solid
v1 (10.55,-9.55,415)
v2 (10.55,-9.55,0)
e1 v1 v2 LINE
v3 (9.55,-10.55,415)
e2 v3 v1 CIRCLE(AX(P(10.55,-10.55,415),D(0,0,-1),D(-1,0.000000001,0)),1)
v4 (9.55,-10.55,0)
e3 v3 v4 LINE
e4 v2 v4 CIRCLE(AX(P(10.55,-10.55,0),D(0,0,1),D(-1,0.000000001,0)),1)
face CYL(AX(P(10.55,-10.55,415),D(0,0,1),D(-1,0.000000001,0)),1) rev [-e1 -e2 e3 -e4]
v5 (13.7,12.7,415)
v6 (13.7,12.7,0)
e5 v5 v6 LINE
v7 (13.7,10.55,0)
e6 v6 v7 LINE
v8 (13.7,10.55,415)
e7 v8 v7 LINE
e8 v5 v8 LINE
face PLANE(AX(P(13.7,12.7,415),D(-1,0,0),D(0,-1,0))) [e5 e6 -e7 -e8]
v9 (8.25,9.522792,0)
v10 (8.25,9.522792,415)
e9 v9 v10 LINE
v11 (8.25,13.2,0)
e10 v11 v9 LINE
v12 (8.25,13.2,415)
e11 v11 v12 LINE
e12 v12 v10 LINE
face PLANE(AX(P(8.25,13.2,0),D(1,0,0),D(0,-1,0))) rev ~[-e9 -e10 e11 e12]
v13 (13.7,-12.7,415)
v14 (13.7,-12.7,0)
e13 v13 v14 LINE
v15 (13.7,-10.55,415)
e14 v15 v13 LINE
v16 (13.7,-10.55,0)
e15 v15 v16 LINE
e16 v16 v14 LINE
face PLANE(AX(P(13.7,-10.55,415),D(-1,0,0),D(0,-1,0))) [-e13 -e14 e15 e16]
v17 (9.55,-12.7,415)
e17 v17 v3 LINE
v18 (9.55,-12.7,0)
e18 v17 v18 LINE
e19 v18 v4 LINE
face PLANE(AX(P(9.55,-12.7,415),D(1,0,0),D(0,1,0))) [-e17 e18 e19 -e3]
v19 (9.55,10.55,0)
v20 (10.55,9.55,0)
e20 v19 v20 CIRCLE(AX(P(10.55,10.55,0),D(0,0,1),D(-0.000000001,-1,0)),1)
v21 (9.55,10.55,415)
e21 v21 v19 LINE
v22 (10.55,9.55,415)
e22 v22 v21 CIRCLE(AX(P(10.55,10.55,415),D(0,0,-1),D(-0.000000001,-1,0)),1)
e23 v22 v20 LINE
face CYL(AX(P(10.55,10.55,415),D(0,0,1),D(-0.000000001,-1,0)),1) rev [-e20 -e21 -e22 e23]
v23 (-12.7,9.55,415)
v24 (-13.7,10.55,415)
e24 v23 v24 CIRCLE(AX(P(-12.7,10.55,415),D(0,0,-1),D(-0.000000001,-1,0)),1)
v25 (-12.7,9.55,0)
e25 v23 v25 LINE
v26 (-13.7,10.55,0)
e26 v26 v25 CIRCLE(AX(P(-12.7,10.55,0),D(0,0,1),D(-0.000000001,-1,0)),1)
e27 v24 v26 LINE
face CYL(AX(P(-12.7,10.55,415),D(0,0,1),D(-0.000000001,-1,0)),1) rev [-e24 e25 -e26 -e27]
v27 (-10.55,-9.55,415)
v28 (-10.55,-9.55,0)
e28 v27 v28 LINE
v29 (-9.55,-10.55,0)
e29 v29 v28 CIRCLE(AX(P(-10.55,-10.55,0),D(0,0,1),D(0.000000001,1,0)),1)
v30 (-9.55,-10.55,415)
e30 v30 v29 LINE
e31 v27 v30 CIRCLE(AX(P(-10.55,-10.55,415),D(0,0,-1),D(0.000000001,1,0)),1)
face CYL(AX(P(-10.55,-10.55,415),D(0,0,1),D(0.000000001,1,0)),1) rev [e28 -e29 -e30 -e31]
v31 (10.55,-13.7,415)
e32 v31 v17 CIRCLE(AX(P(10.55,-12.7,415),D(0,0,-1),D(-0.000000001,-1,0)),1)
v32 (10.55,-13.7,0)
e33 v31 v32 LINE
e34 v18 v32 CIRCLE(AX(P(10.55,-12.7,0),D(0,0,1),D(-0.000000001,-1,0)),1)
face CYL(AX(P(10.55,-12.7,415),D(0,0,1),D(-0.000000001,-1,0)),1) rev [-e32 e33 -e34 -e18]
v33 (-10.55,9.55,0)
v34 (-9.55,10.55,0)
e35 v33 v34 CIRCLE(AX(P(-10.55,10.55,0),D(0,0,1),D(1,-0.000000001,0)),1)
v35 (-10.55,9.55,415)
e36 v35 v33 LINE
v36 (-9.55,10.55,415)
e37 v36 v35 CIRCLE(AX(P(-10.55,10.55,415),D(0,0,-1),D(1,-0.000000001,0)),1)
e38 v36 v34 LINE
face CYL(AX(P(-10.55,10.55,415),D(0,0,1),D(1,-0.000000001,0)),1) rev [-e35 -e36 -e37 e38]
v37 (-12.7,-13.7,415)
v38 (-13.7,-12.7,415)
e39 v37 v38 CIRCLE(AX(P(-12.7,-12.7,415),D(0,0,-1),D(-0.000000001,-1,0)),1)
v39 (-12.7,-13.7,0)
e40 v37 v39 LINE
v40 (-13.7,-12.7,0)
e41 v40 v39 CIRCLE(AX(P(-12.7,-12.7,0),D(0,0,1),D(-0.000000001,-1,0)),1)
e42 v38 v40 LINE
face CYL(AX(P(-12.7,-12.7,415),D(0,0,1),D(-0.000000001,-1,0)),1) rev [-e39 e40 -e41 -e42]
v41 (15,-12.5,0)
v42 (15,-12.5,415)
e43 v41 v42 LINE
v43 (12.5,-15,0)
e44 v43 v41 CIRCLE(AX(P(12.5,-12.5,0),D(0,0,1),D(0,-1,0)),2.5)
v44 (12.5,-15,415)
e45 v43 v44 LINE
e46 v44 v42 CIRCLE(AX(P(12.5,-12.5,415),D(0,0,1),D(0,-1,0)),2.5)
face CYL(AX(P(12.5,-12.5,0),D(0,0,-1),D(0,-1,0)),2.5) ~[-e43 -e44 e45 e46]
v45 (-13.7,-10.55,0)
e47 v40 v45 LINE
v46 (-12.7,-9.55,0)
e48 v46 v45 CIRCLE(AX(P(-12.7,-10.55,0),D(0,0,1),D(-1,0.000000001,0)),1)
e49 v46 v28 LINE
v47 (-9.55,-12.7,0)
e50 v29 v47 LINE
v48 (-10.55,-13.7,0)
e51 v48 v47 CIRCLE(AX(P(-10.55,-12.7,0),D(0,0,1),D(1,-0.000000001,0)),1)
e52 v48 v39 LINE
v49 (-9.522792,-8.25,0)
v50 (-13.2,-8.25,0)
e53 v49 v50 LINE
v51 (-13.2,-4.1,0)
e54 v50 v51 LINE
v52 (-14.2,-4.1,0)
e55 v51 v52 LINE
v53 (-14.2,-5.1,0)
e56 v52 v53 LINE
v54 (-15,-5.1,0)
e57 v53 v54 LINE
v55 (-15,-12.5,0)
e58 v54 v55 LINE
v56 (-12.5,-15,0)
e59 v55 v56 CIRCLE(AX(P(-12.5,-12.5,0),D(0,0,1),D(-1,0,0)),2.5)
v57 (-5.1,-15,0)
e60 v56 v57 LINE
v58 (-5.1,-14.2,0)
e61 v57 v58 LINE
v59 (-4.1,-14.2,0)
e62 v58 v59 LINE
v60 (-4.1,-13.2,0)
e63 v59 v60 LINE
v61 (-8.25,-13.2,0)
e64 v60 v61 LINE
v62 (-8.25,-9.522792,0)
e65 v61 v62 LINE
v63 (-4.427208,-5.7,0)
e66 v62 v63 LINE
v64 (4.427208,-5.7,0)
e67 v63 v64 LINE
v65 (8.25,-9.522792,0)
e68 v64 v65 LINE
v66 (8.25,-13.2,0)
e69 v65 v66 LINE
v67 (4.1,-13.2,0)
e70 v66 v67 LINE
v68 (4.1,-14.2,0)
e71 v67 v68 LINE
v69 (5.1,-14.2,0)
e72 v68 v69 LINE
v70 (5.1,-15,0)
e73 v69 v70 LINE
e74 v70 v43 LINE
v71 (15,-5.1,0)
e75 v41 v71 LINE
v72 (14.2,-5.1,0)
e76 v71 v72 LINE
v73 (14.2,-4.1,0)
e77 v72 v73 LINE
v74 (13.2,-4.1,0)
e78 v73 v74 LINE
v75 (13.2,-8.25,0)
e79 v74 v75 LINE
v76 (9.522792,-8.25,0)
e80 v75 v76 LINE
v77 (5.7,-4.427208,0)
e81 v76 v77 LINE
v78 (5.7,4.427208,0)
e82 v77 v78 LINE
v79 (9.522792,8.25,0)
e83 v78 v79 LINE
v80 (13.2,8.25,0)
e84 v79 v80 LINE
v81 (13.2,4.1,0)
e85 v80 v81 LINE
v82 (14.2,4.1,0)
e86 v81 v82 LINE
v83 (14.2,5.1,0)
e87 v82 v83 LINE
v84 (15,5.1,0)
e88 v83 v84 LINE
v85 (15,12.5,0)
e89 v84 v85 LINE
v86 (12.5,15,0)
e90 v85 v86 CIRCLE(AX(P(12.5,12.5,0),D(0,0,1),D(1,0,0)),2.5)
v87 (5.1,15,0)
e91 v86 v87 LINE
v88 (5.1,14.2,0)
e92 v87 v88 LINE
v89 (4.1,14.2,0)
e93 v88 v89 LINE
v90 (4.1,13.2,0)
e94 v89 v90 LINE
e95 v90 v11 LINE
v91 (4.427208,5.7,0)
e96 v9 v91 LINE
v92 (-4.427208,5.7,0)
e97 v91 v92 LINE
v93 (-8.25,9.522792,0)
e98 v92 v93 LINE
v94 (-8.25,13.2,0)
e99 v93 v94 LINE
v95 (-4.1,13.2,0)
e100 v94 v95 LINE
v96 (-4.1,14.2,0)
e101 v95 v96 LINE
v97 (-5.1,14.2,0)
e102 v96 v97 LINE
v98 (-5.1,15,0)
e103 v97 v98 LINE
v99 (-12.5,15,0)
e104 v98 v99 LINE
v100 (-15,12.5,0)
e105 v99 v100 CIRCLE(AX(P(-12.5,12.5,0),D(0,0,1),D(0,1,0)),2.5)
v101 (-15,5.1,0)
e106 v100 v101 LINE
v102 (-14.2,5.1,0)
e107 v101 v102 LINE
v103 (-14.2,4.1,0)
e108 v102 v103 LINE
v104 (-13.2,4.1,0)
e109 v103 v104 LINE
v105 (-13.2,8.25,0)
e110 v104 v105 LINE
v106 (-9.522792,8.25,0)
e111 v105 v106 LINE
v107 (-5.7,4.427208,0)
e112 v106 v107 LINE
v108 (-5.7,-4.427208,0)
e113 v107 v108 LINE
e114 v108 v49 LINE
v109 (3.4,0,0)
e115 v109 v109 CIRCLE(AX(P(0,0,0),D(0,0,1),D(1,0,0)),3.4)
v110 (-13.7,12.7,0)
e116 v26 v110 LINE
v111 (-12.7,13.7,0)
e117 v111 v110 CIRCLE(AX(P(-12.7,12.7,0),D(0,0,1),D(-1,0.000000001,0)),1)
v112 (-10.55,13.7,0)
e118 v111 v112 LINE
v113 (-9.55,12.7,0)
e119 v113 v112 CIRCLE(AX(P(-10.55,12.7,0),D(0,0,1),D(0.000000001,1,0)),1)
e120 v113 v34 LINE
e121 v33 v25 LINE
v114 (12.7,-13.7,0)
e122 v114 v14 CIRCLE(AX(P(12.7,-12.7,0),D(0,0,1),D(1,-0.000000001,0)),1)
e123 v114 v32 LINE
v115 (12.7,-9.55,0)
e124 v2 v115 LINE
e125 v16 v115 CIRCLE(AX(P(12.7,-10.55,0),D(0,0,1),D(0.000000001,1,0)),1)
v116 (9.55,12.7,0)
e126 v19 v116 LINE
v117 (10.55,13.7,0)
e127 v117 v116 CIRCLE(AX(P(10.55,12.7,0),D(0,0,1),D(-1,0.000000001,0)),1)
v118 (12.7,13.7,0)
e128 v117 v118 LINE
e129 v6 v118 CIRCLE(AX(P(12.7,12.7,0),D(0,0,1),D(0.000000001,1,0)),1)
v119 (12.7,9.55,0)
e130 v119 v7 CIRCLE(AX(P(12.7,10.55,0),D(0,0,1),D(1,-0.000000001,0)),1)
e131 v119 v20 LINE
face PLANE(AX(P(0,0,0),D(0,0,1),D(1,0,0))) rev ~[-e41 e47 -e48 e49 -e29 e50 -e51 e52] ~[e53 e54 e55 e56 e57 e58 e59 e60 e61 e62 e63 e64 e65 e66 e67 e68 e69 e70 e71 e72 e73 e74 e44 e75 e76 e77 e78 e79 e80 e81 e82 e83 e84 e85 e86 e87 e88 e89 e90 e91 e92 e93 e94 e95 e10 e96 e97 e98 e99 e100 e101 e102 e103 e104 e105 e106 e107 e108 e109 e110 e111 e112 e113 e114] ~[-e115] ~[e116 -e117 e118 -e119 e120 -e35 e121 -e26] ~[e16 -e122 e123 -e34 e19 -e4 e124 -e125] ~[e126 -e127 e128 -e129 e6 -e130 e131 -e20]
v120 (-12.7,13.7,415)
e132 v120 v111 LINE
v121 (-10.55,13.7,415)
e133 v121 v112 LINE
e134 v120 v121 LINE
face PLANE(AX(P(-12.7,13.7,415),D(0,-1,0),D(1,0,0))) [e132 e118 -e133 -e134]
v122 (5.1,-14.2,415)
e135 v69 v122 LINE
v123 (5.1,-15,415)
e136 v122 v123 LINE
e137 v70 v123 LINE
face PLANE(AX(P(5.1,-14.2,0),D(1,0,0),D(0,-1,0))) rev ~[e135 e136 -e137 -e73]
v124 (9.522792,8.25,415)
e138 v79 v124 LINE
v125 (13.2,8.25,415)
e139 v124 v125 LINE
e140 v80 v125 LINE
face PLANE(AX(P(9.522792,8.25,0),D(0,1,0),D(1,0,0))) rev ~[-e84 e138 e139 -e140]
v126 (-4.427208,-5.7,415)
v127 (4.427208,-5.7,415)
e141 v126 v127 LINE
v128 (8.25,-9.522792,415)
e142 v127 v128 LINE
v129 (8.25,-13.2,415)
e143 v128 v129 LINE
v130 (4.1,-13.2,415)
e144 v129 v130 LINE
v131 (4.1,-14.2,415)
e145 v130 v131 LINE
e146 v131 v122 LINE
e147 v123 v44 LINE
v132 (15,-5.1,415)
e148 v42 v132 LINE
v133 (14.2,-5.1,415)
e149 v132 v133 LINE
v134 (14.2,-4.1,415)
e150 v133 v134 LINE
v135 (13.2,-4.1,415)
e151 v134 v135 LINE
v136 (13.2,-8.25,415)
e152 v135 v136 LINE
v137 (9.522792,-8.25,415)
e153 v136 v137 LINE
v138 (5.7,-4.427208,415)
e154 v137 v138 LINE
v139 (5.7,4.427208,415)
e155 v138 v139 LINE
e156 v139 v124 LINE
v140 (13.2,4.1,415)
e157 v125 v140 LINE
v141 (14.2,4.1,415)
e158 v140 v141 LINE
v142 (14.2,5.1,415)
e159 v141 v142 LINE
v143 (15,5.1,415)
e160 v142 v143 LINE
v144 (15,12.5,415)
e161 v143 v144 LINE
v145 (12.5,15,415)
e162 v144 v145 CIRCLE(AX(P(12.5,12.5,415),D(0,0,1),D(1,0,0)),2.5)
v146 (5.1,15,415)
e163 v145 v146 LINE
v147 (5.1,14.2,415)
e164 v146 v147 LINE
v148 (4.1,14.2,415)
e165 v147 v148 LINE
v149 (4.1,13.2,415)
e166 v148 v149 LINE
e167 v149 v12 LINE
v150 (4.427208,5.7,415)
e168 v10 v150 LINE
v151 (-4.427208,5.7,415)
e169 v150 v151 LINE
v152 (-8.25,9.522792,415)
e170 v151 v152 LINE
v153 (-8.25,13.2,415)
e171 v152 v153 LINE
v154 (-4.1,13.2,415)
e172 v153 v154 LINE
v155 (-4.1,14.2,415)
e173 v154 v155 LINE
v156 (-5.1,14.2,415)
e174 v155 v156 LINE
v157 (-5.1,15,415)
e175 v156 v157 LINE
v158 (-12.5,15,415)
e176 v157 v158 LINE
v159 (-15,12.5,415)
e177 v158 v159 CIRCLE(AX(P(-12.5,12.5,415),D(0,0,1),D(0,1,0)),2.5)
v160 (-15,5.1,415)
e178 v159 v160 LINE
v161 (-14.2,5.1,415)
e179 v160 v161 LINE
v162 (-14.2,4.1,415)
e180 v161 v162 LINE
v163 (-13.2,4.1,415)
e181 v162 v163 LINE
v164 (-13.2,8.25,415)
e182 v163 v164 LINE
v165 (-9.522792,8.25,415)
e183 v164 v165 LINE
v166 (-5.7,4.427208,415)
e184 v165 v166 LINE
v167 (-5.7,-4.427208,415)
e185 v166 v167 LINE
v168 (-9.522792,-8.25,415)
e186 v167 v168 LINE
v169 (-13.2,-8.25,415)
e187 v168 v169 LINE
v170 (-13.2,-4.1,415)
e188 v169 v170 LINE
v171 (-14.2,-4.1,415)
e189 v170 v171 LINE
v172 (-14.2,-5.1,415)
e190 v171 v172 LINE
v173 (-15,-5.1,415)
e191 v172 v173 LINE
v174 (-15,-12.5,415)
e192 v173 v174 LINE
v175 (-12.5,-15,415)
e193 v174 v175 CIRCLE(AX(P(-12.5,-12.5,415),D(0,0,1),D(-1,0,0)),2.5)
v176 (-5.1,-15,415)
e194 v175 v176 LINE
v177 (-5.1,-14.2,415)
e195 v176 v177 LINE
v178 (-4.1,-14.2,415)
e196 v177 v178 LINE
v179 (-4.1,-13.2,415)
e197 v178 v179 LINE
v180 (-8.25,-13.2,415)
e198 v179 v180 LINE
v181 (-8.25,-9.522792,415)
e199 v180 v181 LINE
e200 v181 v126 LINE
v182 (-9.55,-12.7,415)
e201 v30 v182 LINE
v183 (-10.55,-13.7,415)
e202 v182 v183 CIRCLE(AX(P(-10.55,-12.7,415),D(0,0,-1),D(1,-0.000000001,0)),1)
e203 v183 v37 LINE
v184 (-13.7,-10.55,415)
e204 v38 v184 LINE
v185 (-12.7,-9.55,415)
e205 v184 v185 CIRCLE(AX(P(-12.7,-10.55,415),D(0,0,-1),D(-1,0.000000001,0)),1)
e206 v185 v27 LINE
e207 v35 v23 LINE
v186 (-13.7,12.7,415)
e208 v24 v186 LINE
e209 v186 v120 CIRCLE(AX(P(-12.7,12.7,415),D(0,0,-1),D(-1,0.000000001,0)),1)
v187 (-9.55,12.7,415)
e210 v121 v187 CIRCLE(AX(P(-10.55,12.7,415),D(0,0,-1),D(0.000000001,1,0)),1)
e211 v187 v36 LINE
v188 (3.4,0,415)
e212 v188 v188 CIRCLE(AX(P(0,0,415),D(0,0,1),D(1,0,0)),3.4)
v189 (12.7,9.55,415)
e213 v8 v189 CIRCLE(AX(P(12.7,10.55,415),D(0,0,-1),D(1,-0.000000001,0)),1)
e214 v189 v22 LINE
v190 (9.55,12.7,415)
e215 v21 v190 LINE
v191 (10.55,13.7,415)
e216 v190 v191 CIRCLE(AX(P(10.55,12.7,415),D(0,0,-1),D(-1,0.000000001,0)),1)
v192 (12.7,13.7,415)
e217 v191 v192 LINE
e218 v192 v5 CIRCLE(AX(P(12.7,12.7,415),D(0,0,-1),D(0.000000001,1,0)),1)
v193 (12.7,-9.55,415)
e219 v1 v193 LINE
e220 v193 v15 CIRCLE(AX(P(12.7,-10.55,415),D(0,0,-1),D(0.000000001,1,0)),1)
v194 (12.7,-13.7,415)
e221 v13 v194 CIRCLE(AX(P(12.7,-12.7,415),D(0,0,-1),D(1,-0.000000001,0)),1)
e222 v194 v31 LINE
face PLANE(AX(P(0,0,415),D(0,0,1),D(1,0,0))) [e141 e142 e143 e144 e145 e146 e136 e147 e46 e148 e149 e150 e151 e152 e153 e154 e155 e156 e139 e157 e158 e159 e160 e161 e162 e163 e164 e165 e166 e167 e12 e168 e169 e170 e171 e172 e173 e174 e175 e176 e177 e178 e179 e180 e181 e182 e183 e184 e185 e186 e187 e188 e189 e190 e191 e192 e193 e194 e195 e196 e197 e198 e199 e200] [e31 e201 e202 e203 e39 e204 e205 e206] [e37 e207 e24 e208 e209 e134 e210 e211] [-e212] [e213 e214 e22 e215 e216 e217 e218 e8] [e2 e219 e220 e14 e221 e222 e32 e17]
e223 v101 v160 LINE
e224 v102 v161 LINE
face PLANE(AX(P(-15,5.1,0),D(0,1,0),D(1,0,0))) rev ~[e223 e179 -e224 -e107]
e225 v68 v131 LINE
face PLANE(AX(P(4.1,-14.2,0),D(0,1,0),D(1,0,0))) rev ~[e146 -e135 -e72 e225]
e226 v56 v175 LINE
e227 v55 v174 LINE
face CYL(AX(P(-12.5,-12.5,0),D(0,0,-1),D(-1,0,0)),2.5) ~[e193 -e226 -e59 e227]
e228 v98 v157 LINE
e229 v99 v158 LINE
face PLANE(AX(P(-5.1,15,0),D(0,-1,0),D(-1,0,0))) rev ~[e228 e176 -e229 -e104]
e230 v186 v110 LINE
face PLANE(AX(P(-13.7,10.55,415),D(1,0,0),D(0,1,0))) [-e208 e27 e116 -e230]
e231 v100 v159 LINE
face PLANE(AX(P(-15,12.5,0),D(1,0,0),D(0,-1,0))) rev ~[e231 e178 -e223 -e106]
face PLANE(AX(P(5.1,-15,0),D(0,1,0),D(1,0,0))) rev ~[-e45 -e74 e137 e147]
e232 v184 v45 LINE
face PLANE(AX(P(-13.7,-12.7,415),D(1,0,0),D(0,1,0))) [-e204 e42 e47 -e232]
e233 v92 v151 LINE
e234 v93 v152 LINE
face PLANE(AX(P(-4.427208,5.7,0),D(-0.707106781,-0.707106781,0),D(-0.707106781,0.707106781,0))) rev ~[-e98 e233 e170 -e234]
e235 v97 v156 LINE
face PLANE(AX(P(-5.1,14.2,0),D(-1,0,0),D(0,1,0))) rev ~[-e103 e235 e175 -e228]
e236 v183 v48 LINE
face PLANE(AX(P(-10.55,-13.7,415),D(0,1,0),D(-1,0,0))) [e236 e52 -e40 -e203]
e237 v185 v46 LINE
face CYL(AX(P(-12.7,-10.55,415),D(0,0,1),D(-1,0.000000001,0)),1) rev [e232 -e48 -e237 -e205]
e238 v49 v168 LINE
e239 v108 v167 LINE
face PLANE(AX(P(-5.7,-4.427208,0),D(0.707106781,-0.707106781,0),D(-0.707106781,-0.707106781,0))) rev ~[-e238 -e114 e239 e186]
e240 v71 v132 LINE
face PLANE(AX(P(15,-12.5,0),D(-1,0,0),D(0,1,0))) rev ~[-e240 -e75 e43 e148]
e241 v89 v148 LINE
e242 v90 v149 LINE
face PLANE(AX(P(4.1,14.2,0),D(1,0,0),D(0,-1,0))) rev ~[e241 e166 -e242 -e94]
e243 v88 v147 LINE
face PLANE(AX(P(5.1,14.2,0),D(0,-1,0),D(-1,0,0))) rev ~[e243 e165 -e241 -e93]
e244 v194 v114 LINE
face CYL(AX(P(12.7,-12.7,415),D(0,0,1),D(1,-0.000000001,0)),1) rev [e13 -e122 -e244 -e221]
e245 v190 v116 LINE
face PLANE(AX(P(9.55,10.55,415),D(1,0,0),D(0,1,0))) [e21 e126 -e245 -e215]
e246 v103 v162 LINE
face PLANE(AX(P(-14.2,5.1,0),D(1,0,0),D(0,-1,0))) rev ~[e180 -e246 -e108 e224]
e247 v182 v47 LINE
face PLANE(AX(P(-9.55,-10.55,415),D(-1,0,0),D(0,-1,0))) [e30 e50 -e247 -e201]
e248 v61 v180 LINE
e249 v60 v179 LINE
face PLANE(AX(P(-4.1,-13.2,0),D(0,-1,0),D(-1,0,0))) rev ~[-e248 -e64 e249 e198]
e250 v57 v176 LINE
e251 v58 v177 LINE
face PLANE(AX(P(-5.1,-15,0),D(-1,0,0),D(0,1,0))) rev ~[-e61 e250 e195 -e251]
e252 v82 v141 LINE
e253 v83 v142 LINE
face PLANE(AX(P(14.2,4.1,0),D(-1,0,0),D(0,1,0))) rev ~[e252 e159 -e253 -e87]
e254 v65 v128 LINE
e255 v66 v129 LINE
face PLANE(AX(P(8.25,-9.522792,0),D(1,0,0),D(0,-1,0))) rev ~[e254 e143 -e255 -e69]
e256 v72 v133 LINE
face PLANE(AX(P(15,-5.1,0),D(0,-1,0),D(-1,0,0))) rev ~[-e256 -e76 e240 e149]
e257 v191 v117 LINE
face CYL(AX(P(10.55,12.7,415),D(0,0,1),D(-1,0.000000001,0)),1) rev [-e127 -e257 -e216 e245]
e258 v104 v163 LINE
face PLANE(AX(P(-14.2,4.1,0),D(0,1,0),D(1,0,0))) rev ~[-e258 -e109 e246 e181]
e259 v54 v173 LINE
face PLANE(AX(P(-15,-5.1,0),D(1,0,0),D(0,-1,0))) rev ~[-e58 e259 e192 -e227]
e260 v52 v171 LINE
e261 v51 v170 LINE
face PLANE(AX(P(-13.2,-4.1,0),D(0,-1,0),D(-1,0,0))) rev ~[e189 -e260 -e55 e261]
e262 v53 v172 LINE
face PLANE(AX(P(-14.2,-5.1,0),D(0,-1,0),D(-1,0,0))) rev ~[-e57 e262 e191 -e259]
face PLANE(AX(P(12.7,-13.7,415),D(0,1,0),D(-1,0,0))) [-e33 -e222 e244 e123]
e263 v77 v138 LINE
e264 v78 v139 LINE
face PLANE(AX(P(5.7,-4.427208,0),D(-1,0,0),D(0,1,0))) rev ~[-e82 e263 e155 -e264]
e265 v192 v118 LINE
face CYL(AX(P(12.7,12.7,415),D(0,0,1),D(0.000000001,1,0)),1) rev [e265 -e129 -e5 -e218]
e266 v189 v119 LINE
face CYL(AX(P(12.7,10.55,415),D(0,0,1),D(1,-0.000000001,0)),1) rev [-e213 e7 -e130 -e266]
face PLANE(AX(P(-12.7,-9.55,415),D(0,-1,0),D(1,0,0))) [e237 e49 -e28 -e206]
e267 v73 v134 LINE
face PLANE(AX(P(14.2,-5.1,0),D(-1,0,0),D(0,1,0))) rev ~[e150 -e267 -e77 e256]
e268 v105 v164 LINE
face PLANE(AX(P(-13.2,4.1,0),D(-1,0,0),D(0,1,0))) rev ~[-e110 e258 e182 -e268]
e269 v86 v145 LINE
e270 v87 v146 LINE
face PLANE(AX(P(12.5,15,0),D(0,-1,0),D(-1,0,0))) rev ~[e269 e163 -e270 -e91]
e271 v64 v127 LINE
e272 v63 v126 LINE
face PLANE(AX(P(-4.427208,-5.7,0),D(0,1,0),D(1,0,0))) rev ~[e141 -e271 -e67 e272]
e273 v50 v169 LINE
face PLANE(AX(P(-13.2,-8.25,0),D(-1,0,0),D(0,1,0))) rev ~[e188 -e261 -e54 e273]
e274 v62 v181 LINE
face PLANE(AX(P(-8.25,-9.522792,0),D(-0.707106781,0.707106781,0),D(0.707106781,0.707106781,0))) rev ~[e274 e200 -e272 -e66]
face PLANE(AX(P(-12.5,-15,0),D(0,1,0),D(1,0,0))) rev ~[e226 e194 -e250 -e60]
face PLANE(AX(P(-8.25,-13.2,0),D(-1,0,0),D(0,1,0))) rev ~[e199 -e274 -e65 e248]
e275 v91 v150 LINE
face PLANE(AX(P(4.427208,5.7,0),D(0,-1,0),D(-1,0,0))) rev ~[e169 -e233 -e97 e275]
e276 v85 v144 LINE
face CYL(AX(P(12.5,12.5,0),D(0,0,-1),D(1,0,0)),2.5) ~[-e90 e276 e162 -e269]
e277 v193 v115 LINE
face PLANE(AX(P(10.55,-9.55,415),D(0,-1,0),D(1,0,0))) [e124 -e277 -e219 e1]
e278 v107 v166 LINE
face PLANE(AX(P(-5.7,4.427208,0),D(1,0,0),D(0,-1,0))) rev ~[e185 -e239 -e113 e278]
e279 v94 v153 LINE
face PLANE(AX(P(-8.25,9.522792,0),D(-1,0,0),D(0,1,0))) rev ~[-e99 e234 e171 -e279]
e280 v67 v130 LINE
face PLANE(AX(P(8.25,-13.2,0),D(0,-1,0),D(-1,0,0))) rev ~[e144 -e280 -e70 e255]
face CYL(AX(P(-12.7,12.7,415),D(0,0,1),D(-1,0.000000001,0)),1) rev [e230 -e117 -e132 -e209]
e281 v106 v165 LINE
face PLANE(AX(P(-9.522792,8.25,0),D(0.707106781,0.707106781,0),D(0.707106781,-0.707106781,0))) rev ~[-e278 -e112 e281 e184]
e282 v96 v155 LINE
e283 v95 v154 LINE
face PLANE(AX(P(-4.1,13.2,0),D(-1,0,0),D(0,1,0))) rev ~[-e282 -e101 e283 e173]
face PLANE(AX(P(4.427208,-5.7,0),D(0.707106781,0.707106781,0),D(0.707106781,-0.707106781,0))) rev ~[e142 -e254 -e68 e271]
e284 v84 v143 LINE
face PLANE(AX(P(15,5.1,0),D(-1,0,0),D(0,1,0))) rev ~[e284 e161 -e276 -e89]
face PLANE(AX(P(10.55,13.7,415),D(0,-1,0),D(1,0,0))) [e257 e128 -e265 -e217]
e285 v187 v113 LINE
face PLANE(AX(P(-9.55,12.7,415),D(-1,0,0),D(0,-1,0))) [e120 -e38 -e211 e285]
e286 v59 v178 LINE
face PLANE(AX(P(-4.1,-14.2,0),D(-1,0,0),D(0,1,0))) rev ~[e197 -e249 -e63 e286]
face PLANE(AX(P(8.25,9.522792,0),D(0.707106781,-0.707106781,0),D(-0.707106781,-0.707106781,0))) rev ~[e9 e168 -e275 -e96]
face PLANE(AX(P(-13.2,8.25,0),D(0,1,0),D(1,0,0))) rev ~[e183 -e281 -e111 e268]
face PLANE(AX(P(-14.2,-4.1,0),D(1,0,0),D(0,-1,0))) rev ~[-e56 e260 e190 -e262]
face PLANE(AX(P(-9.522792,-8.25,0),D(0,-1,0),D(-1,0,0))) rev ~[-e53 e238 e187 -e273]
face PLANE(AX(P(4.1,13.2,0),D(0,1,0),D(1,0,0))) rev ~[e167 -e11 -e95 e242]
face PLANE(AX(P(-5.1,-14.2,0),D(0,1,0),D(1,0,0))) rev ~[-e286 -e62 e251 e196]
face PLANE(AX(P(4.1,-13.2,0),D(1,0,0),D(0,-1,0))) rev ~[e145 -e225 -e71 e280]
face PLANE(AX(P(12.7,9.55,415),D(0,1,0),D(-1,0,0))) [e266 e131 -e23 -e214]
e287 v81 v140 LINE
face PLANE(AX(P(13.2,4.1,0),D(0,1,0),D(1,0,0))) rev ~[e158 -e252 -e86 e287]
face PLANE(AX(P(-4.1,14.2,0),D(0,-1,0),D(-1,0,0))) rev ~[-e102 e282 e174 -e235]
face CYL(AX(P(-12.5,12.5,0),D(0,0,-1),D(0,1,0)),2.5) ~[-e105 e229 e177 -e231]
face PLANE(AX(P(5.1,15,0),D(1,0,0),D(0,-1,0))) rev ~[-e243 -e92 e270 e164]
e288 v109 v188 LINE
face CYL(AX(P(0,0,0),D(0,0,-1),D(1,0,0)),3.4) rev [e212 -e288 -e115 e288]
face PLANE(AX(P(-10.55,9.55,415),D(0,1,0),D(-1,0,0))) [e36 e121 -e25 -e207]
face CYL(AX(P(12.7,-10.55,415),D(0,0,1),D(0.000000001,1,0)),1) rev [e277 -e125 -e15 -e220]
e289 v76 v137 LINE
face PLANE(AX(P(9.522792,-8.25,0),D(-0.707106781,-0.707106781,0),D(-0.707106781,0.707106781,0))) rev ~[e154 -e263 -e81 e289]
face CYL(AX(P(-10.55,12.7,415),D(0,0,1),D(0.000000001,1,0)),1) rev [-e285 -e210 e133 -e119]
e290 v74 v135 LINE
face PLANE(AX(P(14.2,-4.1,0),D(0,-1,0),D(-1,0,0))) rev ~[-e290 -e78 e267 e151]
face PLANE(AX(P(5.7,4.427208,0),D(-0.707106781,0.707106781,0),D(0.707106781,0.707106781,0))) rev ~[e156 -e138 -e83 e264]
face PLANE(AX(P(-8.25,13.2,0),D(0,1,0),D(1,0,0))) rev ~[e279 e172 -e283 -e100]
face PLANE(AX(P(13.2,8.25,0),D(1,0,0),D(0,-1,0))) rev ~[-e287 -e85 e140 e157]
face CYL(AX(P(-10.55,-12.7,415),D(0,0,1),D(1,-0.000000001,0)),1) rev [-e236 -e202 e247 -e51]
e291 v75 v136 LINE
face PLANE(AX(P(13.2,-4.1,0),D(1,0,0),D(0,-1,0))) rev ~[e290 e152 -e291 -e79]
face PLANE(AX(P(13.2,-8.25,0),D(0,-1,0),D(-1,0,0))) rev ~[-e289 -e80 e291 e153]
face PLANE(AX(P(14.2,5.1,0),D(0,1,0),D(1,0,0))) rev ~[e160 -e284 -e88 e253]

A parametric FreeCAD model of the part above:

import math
import FreeCAD as App
import Part
import Sketcher
from FreeCAD import Vector

doc = App.newDocument("Part")
body = doc.addObject("PartDesign::Body", "Body")

# Sketch on XY plane
sketch1 = body.newObject("Sketcher::SketchObject", "Sketch")
sketch1.AttachmentSupport = (doc.getObject("XY_Plane"), [""])
sketch1.MapMode = "FlatFace"
sketch1.addGeometry(Part.LineSegment(Vector(-5.1, 14.2, 0), Vector(-5.1, 15, 0)), False)
sketch1.addGeometry(Part.LineSegment(Vector(-5.1, 15, 0), Vector(-12.5, 15, 0)), False)
sketch1.addGeometry(Part.ArcOfCircle(Part.Circle(Vector(-12.5, 12.5, 0), Vector(0, 0, 1), 2.5), math.radians(90), math.radians(180)), False)
sketch1.addGeometry(Part.LineSegment(Vector(-15, 12.5, 0), Vector(-15, 5.1, 0)), False)
sketch1.addGeometry(Part.LineSegment(Vector(-15, 5.1, 0), Vector(-14.2, 5.1, 0)), False)
sketch1.addGeometry(Part.LineSegment(Vector(-14.2, 5.1, 0), Vector(-14.2, 4.1, 0)), False)
sketch1.addGeometry(Part.LineSegment(Vector(-14.2, 4.1, 0), Vector(-13.2, 4.1, 0)), False)
sketch1.addGeometry(Part.LineSegment(Vector(-13.2, 4.1, 0), Vector(-13.2, 8.25, 0)), False)
sketch1.addGeometry(Part.LineSegment(Vector(-13.2, 8.25, 0), Vector(-9.522792, 8.25, 0)), False)
sketch1.addGeometry(Part.LineSegment(Vector(-9.522792, 8.25, 0), Vector(-5.7, 4.427208, 0)), False)
sketch1.addGeometry(Part.LineSegment(Vector(-5.7, 4.427208, 0), Vector(-5.7, -4.427208, 0)), False)
sketch1.addGeometry(Part.LineSegment(Vector(-5.7, -4.427208, 0), Vector(-9.522792, -8.25, 0)), False)
sketch1.addGeometry(Part.LineSegment(Vector(-9.522792, -8.25, 0), Vector(-13.2, -8.25, 0)), False)
sketch1.addGeometry(Part.LineSegment(Vector(-13.2, -8.25, 0), Vector(-13.2, -4.1, 0)), False)
sketch1.addGeometry(Part.LineSegment(Vector(-13.2, -4.1, 0), Vector(-14.2, -4.1, 0)), False)
sketch1.addGeometry(Part.LineSegment(Vector(-14.2, -4.1, 0), Vector(-14.2, -5.1, 0)), False)
sketch1.addGeometry(Part.LineSegment(Vector(-14.2, -5.1, 0), Vector(-15, -5.1, 0)), False)
sketch1.addGeometry(Part.LineSegment(Vector(-15, -5.1, 0), Vector(-15, -12.5, 0)), False)
sketch1.addGeometry(Part.ArcOfCircle(Part.Circle(Vector(-12.5, -12.5, 0), Vector(0, 0, 1), 2.5), math.radians(180), math.radians(270)), False)
sketch1.addGeometry(Part.LineSegment(Vector(-12.5, -15, 0), Vector(-5.1, -15, 0)), False)
sketch1.addGeometry(Part.LineSegment(Vector(-5.1, -15, 0), Vector(-5.1, -14.2, 0)), False)
sketch1.addGeometry(Part.LineSegment(Vector(-5.1, -14.2, 0), Vector(-4.1, -14.2, 0)), False)
sketch1.addGeometry(Part.LineSegment(Vector(-4.1, -14.2, 0), Vector(-4.1, -13.2, 0)), False)
sketch1.addGeometry(Part.LineSegment(Vector(-4.1, -13.2, 0), Vector(-8.25, -13.2, 0)), False)
sketch1.addGeometry(Part.LineSegment(Vector(-8.25, -13.2, 0), Vector(-8.25, -9.522792, 0)), False)
sketch1.addGeometry(Part.LineSegment(Vector(-8.25, -9.522792, 0), Vector(-4.427208, -5.7, 0)), False)
sketch1.addGeometry(Part.LineSegment(Vector(-4.427208, -5.7, 0), Vector(4.427208, -5.7, 0)), False)
sketch1.addGeometry(Part.LineSegment(Vector(4.427208, -5.7, 0), Vector(8.25, -9.522792, 0)), False)
sketch1.addGeometry(Part.LineSegment(Vector(8.25, -9.522792, 0), Vector(8.25, -13.2, 0)), False)
sketch1.addGeometry(Part.LineSegment(Vector(8.25, -13.2, 0), Vector(4.1, -13.2, 0)), False)
sketch1.addGeometry(Part.LineSegment(Vector(4.1, -13.2, 0), Vector(4.1, -14.2, 0)), False)
sketch1.addGeometry(Part.LineSegment(Vector(4.1, -14.2, 0), Vector(5.1, -14.2, 0)), False)
sketch1.addGeometry(Part.LineSegment(Vector(5.1, -14.2, 0), Vector(5.1, -15, 0)), False)
sketch1.addGeometry(Part.LineSegment(Vector(5.1, -15, 0), Vector(12.5, -15, 0)), False)
sketch1.addGeometry(Part.ArcOfCircle(Part.Circle(Vector(12.5, -12.5, 0), Vector(0, 0, 1), 2.5), math.radians(-90), math.radians(0)), False)
sketch1.addGeometry(Part.LineSegment(Vector(15, -12.5, 0), Vector(15, -5.1, 0)), False)
sketch1.addGeometry(Part.LineSegment(Vector(15, -5.1, 0), Vector(14.2, -5.1, 0)), False)
sketch1.addGeometry(Part.LineSegment(Vector(14.2, -5.1, 0), Vector(14.2, -4.1, 0)), False)
sketch1.addGeometry(Part.LineSegment(Vector(14.2, -4.1, 0), Vector(13.2, -4.1, 0)), False)
sketch1.addGeometry(Part.LineSegment(Vector(13.2, -4.1, 0), Vector(13.2, -8.25, 0)), False)
sketch1.addGeometry(Part.LineSegment(Vector(13.2, -8.25, 0), Vector(9.522792, -8.25, 0)), False)
sketch1.addGeometry(Part.LineSegment(Vector(9.522792, -8.25, 0), Vector(5.7, -4.427208, 0)), False)
sketch1.addGeometry(Part.LineSegment(Vector(5.7, -4.427208, 0), Vector(5.7, 4.427208, 0)), False)
sketch1.addGeometry(Part.LineSegment(Vector(5.7, 4.427208, 0), Vector(9.522792, 8.25, 0)), False)
sketch1.addGeometry(Part.LineSegment(Vector(9.522792, 8.25, 0), Vector(13.2, 8.25, 0)), False)
sketch1.addGeometry(Part.LineSegment(Vector(13.2, 8.25, 0), Vector(13.2, 4.1, 0)), False)
sketch1.addGeometry(Part.LineSegment(Vector(13.2, 4.1, 0), Vector(14.2, 4.1, 0)), False)
sketch1.addGeometry(Part.LineSegment(Vector(14.2, 4.1, 0), Vector(14.2, 5.1, 0)), False)
sketch1.addGeometry(Part.LineSegment(Vector(14.2, 5.1, 0), Vector(15, 5.1, 0)), False)
sketch1.addGeometry(Part.LineSegment(Vector(15, 5.1, 0), Vector(15, 12.5, 0)), False)
sketch1.addGeometry(Part.ArcOfCircle(Part.Circle(Vector(12.5, 12.5, 0), Vector(0, 0, 1), 2.5), math.radians(0), math.radians(90)), False)
sketch1.addGeometry(Part.LineSegment(Vector(12.5, 15, 0), Vector(5.1, 15, 0)), False)
sketch1.addGeometry(Part.LineSegment(Vector(5.1, 15, 0), Vector(5.1, 14.2, 0)), False)
sketch1.addGeometry(Part.LineSegment(Vector(5.1, 14.2, 0), Vector(4.1, 14.2, 0)), False)
sketch1.addGeometry(Part.LineSegment(Vector(4.1, 14.2, 0), Vector(4.1, 13.2, 0)), False)
sketch1.addGeometry(Part.LineSegment(Vector(4.1, 13.2, 0), Vector(8.25, 13.2, 0)), False)
sketch1.addGeometry(Part.LineSegment(Vector(8.25, 13.2, 0), Vector(8.25, 9.522792, 0)), False)
sketch1.addGeometry(Part.LineSegment(Vector(8.25, 9.522792, 0), Vector(4.427208, 5.7, 0)), False)
sketch1.addGeometry(Part.LineSegment(Vector(4.427208, 5.7, 0), Vector(-4.427208, 5.7, 0)), False)
sketch1.addGeometry(Part.LineSegment(Vector(-4.427208, 5.7, 0), Vector(-8.25, 9.522792, 0)), False)
sketch1.addGeometry(Part.LineSegment(Vector(-8.25, 9.522792, 0), Vector(-8.25, 13.2, 0)), False)
sketch1.addGeometry(Part.LineSegment(Vector(-8.25, 13.2, 0), Vector(-4.1, 13.2, 0)), False)
sketch1.addGeometry(Part.LineSegment(Vector(-4.1, 13.2, 0), Vector(-4.1, 14.2, 0)), False)
sketch1.addGeometry(Part.LineSegment(Vector(-4.1, 14.2, 0), Vector(-5.1, 14.2, 0)), False)
sketch1.addGeometry(Part.Circle(Vector(0, 0, 0), Vector(0, 0, 1), 3.4), False)
sketch1.addConstraint(Sketcher.Constraint("Coincident", 0, 2, 1, 1))
sketch1.addConstraint(Sketcher.Constraint("Tangent", 1, 2, 2, 1))
sketch1.addConstraint(Sketcher.Constraint("Tangent", 2, 2, 3, 1))
sketch1.addConstraint(Sketcher.Constraint("Coincident", 3, 2, 4, 1))
sketch1.addConstraint(Sketcher.Constraint("Coincident", 4, 2, 5, 1))
sketch1.addConstraint(Sketcher.Constraint("Coincident", 5, 2, 6, 1))
sketch1.addConstraint(Sketcher.Constraint("Coincident", 6, 2, 7, 1))
sketch1.addConstraint(Sketcher.Constraint("Coincident", 7, 2, 8, 1))
sketch1.addConstraint(Sketcher.Constraint("Coincident", 8, 2, 9, 1))
sketch1.addConstraint(Sketcher.Constraint("Coincident", 9, 2, 10, 1))
sketch1.addConstraint(Sketcher.Constraint("Coincident", 10, 2, 11, 1))
sketch1.addConstraint(Sketcher.Constraint("Coincident", 11, 2, 12, 1))
sketch1.addConstraint(Sketcher.Constraint("Coincident", 12, 2, 13, 1))
sketch1.addConstraint(Sketcher.Constraint("Coincident", 13, 2, 14, 1))
sketch1.addConstraint(Sketcher.Constraint("Coincident", 14, 2, 15, 1))
sketch1.addConstraint(Sketcher.Constraint("Coincident", 15, 2, 16, 1))
sketch1.addConstraint(Sketcher.Constraint("Coincident", 16, 2, 17, 1))
sketch1.addConstraint(Sketcher.Constraint("Tangent", 17, 2, 18, 1))
sketch1.addConstraint(Sketcher.Constraint("Tangent", 18, 2, 19, 1))
sketch1.addConstraint(Sketcher.Constraint("Coincident", 19, 2, 20, 1))
sketch1.addConstraint(Sketcher.Constraint("Coincident", 20, 2, 21, 1))
sketch1.addConstraint(Sketcher.Constraint("Coincident", 21, 2, 22, 1))
sketch1.addConstraint(Sketcher.Constraint("Coincident", 22, 2, 23, 1))
sketch1.addConstraint(Sketcher.Constraint("Coincident", 23, 2, 24, 1))
sketch1.addConstraint(Sketcher.Constraint("Coincident", 24, 2, 25, 1))
sketch1.addConstraint(Sketcher.Constraint("Coincident", 25, 2, 26, 1))
sketch1.addConstraint(Sketcher.Constraint("Coincident", 26, 2, 27, 1))
sketch1.addConstraint(Sketcher.Constraint("Coincident", 27, 2, 28, 1))
sketch1.addConstraint(Sketcher.Constraint("Coincident", 28, 2, 29, 1))
sketch1.addConstraint(Sketcher.Constraint("Coincident", 29, 2, 30, 1))
sketch1.addConstraint(Sketcher.Constraint("Coincident", 30, 2, 31, 1))
sketch1.addConstraint(Sketcher.Constraint("Coincident", 31, 2, 32, 1))
sketch1.addConstraint(Sketcher.Constraint("Coincident", 32, 2, 33, 1))
sketch1.addConstraint(Sketcher.Constraint("Tangent", 33, 2, 34, 1))
sketch1.addConstraint(Sketcher.Constraint("Tangent", 34, 2, 35, 1))
sketch1.addConstraint(Sketcher.Constraint("Coincident", 35, 2, 36, 1))
sketch1.addConstraint(Sketcher.Constraint("Coincident", 36, 2, 37, 1))
sketch1.addConstraint(Sketcher.Constraint("Coincident", 37, 2, 38, 1))
sketch1.addConstraint(Sketcher.Constraint("Coincident", 38, 2, 39, 1))
sketch1.addConstraint(Sketcher.Constraint("Coincident", 39, 2, 40, 1))
sketch1.addConstraint(Sketcher.Constraint("Coincident", 40, 2, 41, 1))
sketch1.addConstraint(Sketcher.Constraint("Coincident", 41, 2, 42, 1))
sketch1.addConstraint(Sketcher.Constraint("Coincident", 42, 2, 43, 1))
sketch1.addConstraint(Sketcher.Constraint("Coincident", 43, 2, 44, 1))
sketch1.addConstraint(Sketcher.Constraint("Coincident", 44, 2, 45, 1))
sketch1.addConstraint(Sketcher.Constraint("Coincident", 45, 2, 46, 1))
sketch1.addConstraint(Sketcher.Constraint("Coincident", 46, 2, 47, 1))
sketch1.addConstraint(Sketcher.Constraint("Coincident", 47, 2, 48, 1))
sketch1.addConstraint(Sketcher.Constraint("Coincident", 48, 2, 49, 1))
sketch1.addConstraint(Sketcher.Constraint("Tangent", 49, 2, 50, 1))
sketch1.addConstraint(Sketcher.Constraint("Tangent", 50, 2, 51, 1))
sketch1.addConstraint(Sketcher.Constraint("Coincident", 51, 2, 52, 1))
sketch1.addConstraint(Sketcher.Constraint("Coincident", 52, 2, 53, 1))
sketch1.addConstraint(Sketcher.Constraint("Coincident", 53, 2, 54, 1))
sketch1.addConstraint(Sketcher.Constraint("Coincident", 54, 2, 55, 1))
sketch1.addConstraint(Sketcher.Constraint("Coincident", 55, 2, 56, 1))
sketch1.addConstraint(Sketcher.Constraint("Coincident", 56, 2, 57, 1))
sketch1.addConstraint(Sketcher.Constraint("Coincident", 57, 2, 58, 1))
sketch1.addConstraint(Sketcher.Constraint("Coincident", 58, 2, 59, 1))
sketch1.addConstraint(Sketcher.Constraint("Coincident", 59, 2, 60, 1))
sketch1.addConstraint(Sketcher.Constraint("Coincident", 60, 2, 61, 1))
sketch1.addConstraint(Sketcher.Constraint("Coincident", 61, 2, 62, 1))
sketch1.addConstraint(Sketcher.Constraint("Coincident", 62, 2, 63, 1))
sketch1.addConstraint(Sketcher.Constraint("Coincident", 63, 2, 0, 1))
sketch1.addConstraint(Sketcher.Constraint("Vertical", 0))
sketch1.addConstraint(Sketcher.Constraint("Horizontal", 1))
sketch1.addConstraint(Sketcher.Constraint("Vertical", 3))
sketch1.addConstraint(Sketcher.Constraint("Horizontal", 4))
sketch1.addConstraint(Sketcher.Constraint("Vertical", 5))
sketch1.addConstraint(Sketcher.Constraint("Horizontal", 6))
sketch1.addConstraint(Sketcher.Constraint("Vertical", 7))
sketch1.addConstraint(Sketcher.Constraint("Horizontal", 8))
sketch1.addConstraint(Sketcher.Constraint("Vertical", 10))
sketch1.addConstraint(Sketcher.Constraint("Horizontal", 12))
sketch1.addConstraint(Sketcher.Constraint("Vertical", 13))
sketch1.addConstraint(Sketcher.Constraint("Horizontal", 14))
sketch1.addConstraint(Sketcher.Constraint("Vertical", 15))
sketch1.addConstraint(Sketcher.Constraint("Horizontal", 16))
sketch1.addConstraint(Sketcher.Constraint("Vertical", 17))
sketch1.addConstraint(Sketcher.Constraint("Horizontal", 19))
sketch1.addConstraint(Sketcher.Constraint("Vertical", 20))
sketch1.addConstraint(Sketcher.Constraint("Horizontal", 21))
sketch1.addConstraint(Sketcher.Constraint("Vertical", 22))
sketch1.addConstraint(Sketcher.Constraint("Horizontal", 23))
sketch1.addConstraint(Sketcher.Constraint("Vertical", 24))
sketch1.addConstraint(Sketcher.Constraint("Horizontal", 26))
sketch1.addConstraint(Sketcher.Constraint("Vertical", 28))
sketch1.addConstraint(Sketcher.Constraint("Horizontal", 29))
sketch1.addConstraint(Sketcher.Constraint("Vertical", 30))
sketch1.addConstraint(Sketcher.Constraint("Horizontal", 31))
sketch1.addConstraint(Sketcher.Constraint("Vertical", 32))
sketch1.addConstraint(Sketcher.Constraint("Horizontal", 33))
sketch1.addConstraint(Sketcher.Constraint("Vertical", 35))
sketch1.addConstraint(Sketcher.Constraint("Horizontal", 36))
sketch1.addConstraint(Sketcher.Constraint("Vertical", 37))
sketch1.addConstraint(Sketcher.Constraint("Horizontal", 38))
sketch1.addConstraint(Sketcher.Constraint("Vertical", 39))
sketch1.addConstraint(Sketcher.Constraint("Horizontal", 40))
sketch1.addConstraint(Sketcher.Constraint("Vertical", 42))
sketch1.addConstraint(Sketcher.Constraint("Horizontal", 44))
sketch1.addConstraint(Sketcher.Constraint("Vertical", 45))
sketch1.addConstraint(Sketcher.Constraint("Horizontal", 46))
sketch1.addConstraint(Sketcher.Constraint("Vertical", 47))
sketch1.addConstraint(Sketcher.Constraint("Horizontal", 48))
sketch1.addConstraint(Sketcher.Constraint("Vertical", 49))
sketch1.addConstraint(Sketcher.Constraint("Horizontal", 51))
sketch1.addConstraint(Sketcher.Constraint("Vertical", 52))
sketch1.addConstraint(Sketcher.Constraint("Horizontal", 53))
sketch1.addConstraint(Sketcher.Constraint("Vertical", 54))
sketch1.addConstraint(Sketcher.Constraint("Horizontal", 55))
sketch1.addConstraint(Sketcher.Constraint("Vertical", 56))
sketch1.addConstraint(Sketcher.Constraint("Horizontal", 58))
sketch1.addConstraint(Sketcher.Constraint("Vertical", 60))
sketch1.addConstraint(Sketcher.Constraint("Horizontal", 61))
sketch1.addConstraint(Sketcher.Constraint("Vertical", 62))
sketch1.addConstraint(Sketcher.Constraint("Horizontal", 63))
sketch1.addConstraint(Sketcher.Constraint("Coincident", 64, 3, -1, 1))
sketch1.addConstraint(Sketcher.Constraint("Equal", 2, 18))
sketch1.addConstraint(Sketcher.Constraint("Equal", 18, 34))
sketch1.addConstraint(Sketcher.Constraint("Equal", 34, 50))
sketch1.addConstraint(Sketcher.Constraint("Symmetric", 2, 3, 34, 3, -1, 1))
sketch1.addConstraint(Sketcher.Constraint("Symmetric", 18, 3, 50, 3, -1, 1))
sketch1.addConstraint(Sketcher.Constraint("Symmetric", 4, 2, 36, 2, -1, 1))
sketch1.addConstraint(Sketcher.Constraint("Symmetric", 6, 2, 38, 2, -1, 1))
sketch1.addConstraint(Sketcher.Constraint("Symmetric", 8, 2, 40, 2, -1, 1))
sketch1.addConstraint(Sketcher.Constraint("Symmetric", 9, 2, 41, 2, -1, 1))
sketch1.addConstraint(Sketcher.Constraint("Symmetric", 11, 2, 43, 2, -1, 1))
sketch1.addConstraint(Sketcher.Constraint("Symmetric", 13, 2, 45, 2, -1, 1))
sketch1.addConstraint(Sketcher.Constraint("Symmetric", 15, 2, 47, 2, -1, 1))
sketch1.addConstraint(Sketcher.Constraint("Symmetric", 20, 2, 52, 2, -1, 1))
sketch1.addConstraint(Sketcher.Constraint("Symmetric", 22, 2, 54, 2, -1, 1))
sketch1.addConstraint(Sketcher.Constraint("Symmetric", 24, 2, 56, 2, -1, 1))
sketch1.addConstraint(Sketcher.Constraint("Symmetric", 25, 2, 57, 2, -1, 1))
sketch1.addConstraint(Sketcher.Constraint("Symmetric", 27, 2, 59, 2, -1, 1))
sketch1.addConstraint(Sketcher.Constraint("Symmetric", 29, 2, 61, 2, -1, 1))
sketch1.addConstraint(Sketcher.Constraint("Symmetric", 31, 2, 63, 2, -1, 1))
sketch1.addConstraint(Sketcher.Constraint("Symmetric", 18, 3, 34, 3, -2))
sketch1.addConstraint(Sketcher.Constraint("Symmetric", 24, 2, 27, 2, -2))
sketch1.addConstraint(Sketcher.Constraint("Symmetric", 22, 2, 29, 2, -2))
sketch1.addConstraint(Sketcher.Constraint("Symmetric", 20, 2, 31, 2, -2))
sketch1.addConstraint(Sketcher.Constraint("Symmetric", 15, 2, 36, 2, -2))
sketch1.addConstraint(Sketcher.Constraint("Symmetric", 13, 2, 38, 2, -2))
sketch1.addConstraint(Sketcher.Constraint("Symmetric", 11, 2, 40, 2, -2))
sketch1.addConstraint(Sketcher.Constraint("Perpendicular", 9, 11))
sketch1.addConstraint(Sketcher.Constraint("Parallel", 11, 25))
sketch1.addConstraint(Sketcher.Constraint("Perpendicular", 25, 27))
sketch1.addConstraint(Sketcher.Constraint("Perpendicular", 41, 43))
sketch1.addConstraint(Sketcher.Constraint("Perpendicular", 57, 59))
sketch1.addConstraint(Sketcher.Constraint("Horizontal", 10, 2, 41, 2))
sketch1.addConstraint(Sketcher.Constraint("Equal", 14, 21))
sketch1.addConstraint(Sketcher.Constraint("Equal", 48, 0))
sketch1.addConstraint(Sketcher.Constraint("Equal", 51, 3))
sketch1.addConstraint(Sketcher.Constraint("Equal", 63, 5))
sketch1.addConstraint(Sketcher.Constraint("Equal", 61, 7))
sketch1.addConstraint(Sketcher.Constraint("Equal", 58, 10))
sketch1.addConstraint(Sketcher.Constraint("Equal", 15, 22))
sketch1.addConstraint(Sketcher.Constraint("Equal", 44, 24))
sketch1.addConstraint(Sketcher.Constraint("Equal", 11, 25))
sketch1.addConstraint(Sketcher.Constraint("Diameter", 64, 6.8))
sketch1.addConstraint(Sketcher.Constraint("Radius", 2, 2.5))
sketch1.addConstraint(Sketcher.Constraint("DistanceX", 6, 1, 6, 2, 1.0))
sketch1.addConstraint(Sketcher.Constraint("DistanceX", 1, 2, 1, 1, 7.4))
sketch1.addConstraint(Sketcher.Constraint("DistanceX", 4, 1, 4, 2, 0.8))
sketch1.addConstraint(Sketcher.Constraint("DistanceY", -1, 1, 0, 2, 15.0))
sketch1.addConstraint(Sketcher.Constraint("DistanceX", 23, 2, 23, 1, 4.15))
sketch1.addConstraint(Sketcher.Constraint("DistanceX", 9, 2, -1, 1, 5.7))
sketch1.addConstraint(Sketcher.Constraint("DistanceX", 8, 1, 8, 2, 3.677208))
pad1 = body.newObject("PartDesign::Pad", "Pad")
pad1.Profile = sketch1
pad1.Length = 415

# Sketch on XY plane
sketch2 = body.newObject("Sketcher::SketchObject", "Sketch001")
sketch2.AttachmentSupport = (doc.getObject("XY_Plane"), [""])
sketch2.MapMode = "FlatFace"
sketch2.AttachmentOffset = App.Placement(Vector(0, 0, 415), App.Rotation())
sketch2.addGeometry(Part.LineSegment(Vector(13.7, 10.55, 0), Vector(13.7, 12.7, 0)), False)
sketch2.addGeometry(Part.ArcOfCircle(Part.Circle(Vector(12.7, 12.7, 0), Vector(0, 0, 1), 1), math.radians(0), math.radians(90)), False)
sketch2.addGeometry(Part.LineSegment(Vector(12.7, 13.7, 0), Vector(10.55, 13.7, 0)), False)
sketch2.addGeometry(Part.ArcOfCircle(Part.Circle(Vector(10.55, 12.7, 0), Vector(0, 0, 1), 1), math.radians(90), math.radians(180)), False)
sketch2.addGeometry(Part.LineSegment(Vector(9.55, 12.7, 0), Vector(9.55, 10.55, 0)), False)
sketch2.addGeometry(Part.ArcOfCircle(Part.Circle(Vector(10.55, 10.55, 0), Vector(0, 0, 1), 1), math.radians(-180), math.radians(-90)), False)
sketch2.addGeometry(Part.LineSegment(Vector(10.55, 9.55, 0), Vector(12.7, 9.55, 0)), False)
sketch2.addGeometry(Part.ArcOfCircle(Part.Circle(Vector(12.7, 10.55, 0), Vector(0, 0, 1), 1), math.radians(-90), math.radians(0)), False)
sketch2.addGeometry(Part.LineSegment(Vector(-10.55, 13.7, 0), Vector(-12.7, 13.7, 0)), False)
sketch2.addGeometry(Part.ArcOfCircle(Part.Circle(Vector(-12.7, 12.7, 0), Vector(0, 0, 1), 1), math.radians(90), math.radians(180)), False)
sketch2.addGeometry(Part.LineSegment(Vector(-13.7, 12.7, 0), Vector(-13.7, 10.55, 0)), False)
sketch2.addGeometry(Part.ArcOfCircle(Part.Circle(Vector(-12.7, 10.55, 0), Vector(0, 0, 1), 1), math.radians(-180), math.radians(-90)), False)
sketch2.addGeometry(Part.LineSegment(Vector(-12.7, 9.55, 0), Vector(-10.55, 9.55, 0)), False)
sketch2.addGeometry(Part.ArcOfCircle(Part.Circle(Vector(-10.55, 10.55, 0), Vector(0, 0, 1), 1), math.radians(-90), math.radians(0)), False)
sketch2.addGeometry(Part.LineSegment(Vector(-9.55, 10.55, 0), Vector(-9.55, 12.7, 0)), False)
sketch2.addGeometry(Part.ArcOfCircle(Part.Circle(Vector(-10.55, 12.7, 0), Vector(0, 0, 1), 1), math.radians(0), math.radians(90)), False)
sketch2.addGeometry(Part.LineSegment(Vector(10.55, -13.7, 0), Vector(12.7, -13.7, 0)), False)
sketch2.addGeometry(Part.ArcOfCircle(Part.Circle(Vector(12.7, -12.7, 0), Vector(0, 0, 1), 1), math.radians(-90), math.radians(0)), False)
sketch2.addGeometry(Part.LineSegment(Vector(13.7, -12.7, 0), Vector(13.7, -10.55, 0)), False)
sketch2.addGeometry(Part.ArcOfCircle(Part.Circle(Vector(12.7, -10.55, 0), Vector(0, 0, 1), 1), math.radians(0), math.radians(90)), False)
sketch2.addGeometry(Part.LineSegment(Vector(12.7, -9.55, 0), Vector(10.55, -9.55, 0)), False)
sketch2.addGeometry(Part.ArcOfCircle(Part.Circle(Vector(10.55, -10.55, 0), Vector(0, 0, 1), 1), math.radians(90), math.radians(180)), False)
sketch2.addGeometry(Part.LineSegment(Vector(9.55, -10.55, 0), Vector(9.55, -12.7, 0)), False)
sketch2.addGeometry(Part.ArcOfCircle(Part.Circle(Vector(10.55, -12.7, 0), Vector(0, 0, 1), 1), math.radians(-180), math.radians(-90)), False)
sketch2.addGeometry(Part.LineSegment(Vector(-13.7, -10.55, 0), Vector(-13.7, -12.7, 0)), False)
sketch2.addGeometry(Part.ArcOfCircle(Part.Circle(Vector(-12.7, -12.7, 0), Vector(0, 0, 1), 1), math.radians(-180), math.radians(-90)), False)
sketch2.addGeometry(Part.LineSegment(Vector(-12.7, -13.7, 0), Vector(-10.55, -13.7, 0)), False)
sketch2.addGeometry(Part.ArcOfCircle(Part.Circle(Vector(-10.55, -12.7, 0), Vector(0, 0, 1), 1), math.radians(-90), math.radians(0)), False)
sketch2.addGeometry(Part.LineSegment(Vector(-9.55, -12.7, 0), Vector(-9.55, -10.55, 0)), False)
sketch2.addGeometry(Part.ArcOfCircle(Part.Circle(Vector(-10.55, -10.55, 0), Vector(0, 0, 1), 1), math.radians(0), math.radians(90)), False)
sketch2.addGeometry(Part.LineSegment(Vector(-10.55, -9.55, 0), Vector(-12.7, -9.55, 0)), False)
sketch2.addGeometry(Part.ArcOfCircle(Part.Circle(Vector(-12.7, -10.55, 0), Vector(0, 0, 1), 1), math.radians(90), math.radians(180)), False)
sketch2.addConstraint(Sketcher.Constraint("Tangent", 0, 2, 1, 1))
sketch2.addConstraint(Sketcher.Constraint("Tangent", 1, 2, 2, 1))
sketch2.addConstraint(Sketcher.Constraint("Tangent", 2, 2, 3, 1))
sketch2.addConstraint(Sketcher.Constraint("Tangent", 3, 2, 4, 1))
sketch2.addConstraint(Sketcher.Constraint("Tangent", 4, 2, 5, 1))
sketch2.addConstraint(Sketcher.Constraint("Tangent", 5, 2, 6, 1))
sketch2.addConstraint(Sketcher.Constraint("Tangent", 6, 2, 7, 1))
sketch2.addConstraint(Sketcher.Constraint("Tangent", 7, 2, 0, 1))
sketch2.addConstraint(Sketcher.Constraint("Tangent", 8, 2, 9, 1))
sketch2.addConstraint(Sketcher.Constraint("Tangent", 9, 2, 10, 1))
sketch2.addConstraint(Sketcher.Constraint("Tangent", 10, 2, 11, 1))
sketch2.addConstraint(Sketcher.Constraint("Tangent", 11, 2, 12, 1))
sketch2.addConstraint(Sketcher.Constraint("Tangent", 12, 2, 13, 1))
sketch2.addConstraint(Sketcher.Constraint("Tangent", 13, 2, 14, 1))
sketch2.addConstraint(Sketcher.Constraint("Tangent", 14, 2, 15, 1))
sketch2.addConstraint(Sketcher.Constraint("Tangent", 15, 2, 8, 1))
sketch2.addConstraint(Sketcher.Constraint("Tangent", 16, 2, 17, 1))
sketch2.addConstraint(Sketcher.Constraint("Tangent", 17, 2, 18, 1))
sketch2.addConstraint(Sketcher.Constraint("Tangent", 18, 2, 19, 1))
sketch2.addConstraint(Sketcher.Constraint("Tangent", 19, 2, 20, 1))
sketch2.addConstraint(Sketcher.Constraint("Tangent", 20, 2, 21, 1))
sketch2.addConstraint(Sketcher.Constraint("Tangent", 21, 2, 22, 1))
sketch2.addConstraint(Sketcher.Constraint("Tangent", 22, 2, 23, 1))
sketch2.addConstraint(Sketcher.Constraint("Tangent", 23, 2, 16, 1))
sketch2.addConstraint(Sketcher.Constraint("Tangent", 24, 2, 25, 1))
sketch2.addConstraint(Sketcher.Constraint("Tangent", 25, 2, 26, 1))
sketch2.addConstraint(Sketcher.Constraint("Tangent", 26, 2, 27, 1))
sketch2.addConstraint(Sketcher.Constraint("Tangent", 27, 2, 28, 1))
sketch2.addConstraint(Sketcher.Constraint("Tangent", 28, 2, 29, 1))
sketch2.addConstraint(Sketcher.Constraint("Tangent", 29, 2, 30, 1))
sketch2.addConstraint(Sketcher.Constraint("Tangent", 30, 2, 31, 1))
sketch2.addConstraint(Sketcher.Constraint("Tangent", 31, 2, 24, 1))
sketch2.addConstraint(Sketcher.Constraint("Vertical", 0))
sketch2.addConstraint(Sketcher.Constraint("Horizontal", 2))
sketch2.addConstraint(Sketcher.Constraint("Vertical", 4))
sketch2.addConstraint(Sketcher.Constraint("Horizontal", 6))
sketch2.addConstraint(Sketcher.Constraint("Horizontal", 8))
sketch2.addConstraint(Sketcher.Constraint("Vertical", 10))
sketch2.addConstraint(Sketcher.Constraint("Horizontal", 12))
sketch2.addConstraint(Sketcher.Constraint("Vertical", 14))
sketch2.addConstraint(Sketcher.Constraint("Horizontal", 16))
sketch2.addConstraint(Sketcher.Constraint("Vertical", 18))
sketch2.addConstraint(Sketcher.Constraint("Horizontal", 20))
sketch2.addConstraint(Sketcher.Constraint("Vertical", 22))
sketch2.addConstraint(Sketcher.Constraint("Vertical", 24))
sketch2.addConstraint(Sketcher.Constraint("Horizontal", 26))
sketch2.addConstraint(Sketcher.Constraint("Vertical", 28))
sketch2.addConstraint(Sketcher.Constraint("Horizontal", 30))
sketch2.addConstraint(Sketcher.Constraint("Equal", 1, 3))
sketch2.addConstraint(Sketcher.Constraint("Equal", 3, 5))
sketch2.addConstraint(Sketcher.Constraint("Equal", 5, 7))
sketch2.addConstraint(Sketcher.Constraint("Equal", 7, 9))
sketch2.addConstraint(Sketcher.Constraint("Equal", 9, 11))
sketch2.addConstraint(Sketcher.Constraint("Equal", 11, 13))
sketch2.addConstraint(Sketcher.Constraint("Equal", 13, 15))
sketch2.addConstraint(Sketcher.Constraint("Equal", 15, 17))
sketch2.addConstraint(Sketcher.Constraint("Equal", 17, 19))
sketch2.addConstraint(Sketcher.Constraint("Equal", 19, 21))
sketch2.addConstraint(Sketcher.Constraint("Equal", 21, 23))
sketch2.addConstraint(Sketcher.Constraint("Equal", 23, 25))
sketch2.addConstraint(Sketcher.Constraint("Equal", 25, 27))
sketch2.addConstraint(Sketcher.Constraint("Equal", 27, 29))
sketch2.addConstraint(Sketcher.Constraint("Equal", 29, 31))
sketch2.addConstraint(Sketcher.Constraint("Symmetric", 9, 3, 17, 3, -1, 1))
sketch2.addConstraint(Sketcher.Constraint("Symmetric", 13, 3, 21, 3, -1, 1))
sketch2.addConstraint(Sketcher.Constraint("Symmetric", 1, 3, 25, 3, -1, 1))
sketch2.addConstraint(Sketcher.Constraint("Symmetric", 5, 3, 29, 3, -1, 1))
sketch2.addConstraint(Sketcher.Constraint("Symmetric", 1, 3, 9, 3, -2))
sketch2.addConstraint(Sketcher.Constraint("Symmetric", 5, 3, 13, 3, -2))
sketch2.addConstraint(Sketcher.Constraint("Equal", 30, 0))
sketch2.addConstraint(Sketcher.Constraint("Radius", 1, 1.0))
sketch2.addConstraint(Sketcher.Constraint("DistanceX", 2, 2, 2, 1, 2.15))
sketch2.addConstraint(Sketcher.Constraint("DistanceX", -1, 1, 1, 3, 12.7))
sketch2.addConstraint(Sketcher.Constraint("DistanceY", -1, 1, 1, 3, 12.7))
pocket1 = body.newObject("PartDesign::Pocket", "Pocket")
pocket1.Profile = sketch2
pocket1.Type = "ThroughAll"

doc.recompute()
